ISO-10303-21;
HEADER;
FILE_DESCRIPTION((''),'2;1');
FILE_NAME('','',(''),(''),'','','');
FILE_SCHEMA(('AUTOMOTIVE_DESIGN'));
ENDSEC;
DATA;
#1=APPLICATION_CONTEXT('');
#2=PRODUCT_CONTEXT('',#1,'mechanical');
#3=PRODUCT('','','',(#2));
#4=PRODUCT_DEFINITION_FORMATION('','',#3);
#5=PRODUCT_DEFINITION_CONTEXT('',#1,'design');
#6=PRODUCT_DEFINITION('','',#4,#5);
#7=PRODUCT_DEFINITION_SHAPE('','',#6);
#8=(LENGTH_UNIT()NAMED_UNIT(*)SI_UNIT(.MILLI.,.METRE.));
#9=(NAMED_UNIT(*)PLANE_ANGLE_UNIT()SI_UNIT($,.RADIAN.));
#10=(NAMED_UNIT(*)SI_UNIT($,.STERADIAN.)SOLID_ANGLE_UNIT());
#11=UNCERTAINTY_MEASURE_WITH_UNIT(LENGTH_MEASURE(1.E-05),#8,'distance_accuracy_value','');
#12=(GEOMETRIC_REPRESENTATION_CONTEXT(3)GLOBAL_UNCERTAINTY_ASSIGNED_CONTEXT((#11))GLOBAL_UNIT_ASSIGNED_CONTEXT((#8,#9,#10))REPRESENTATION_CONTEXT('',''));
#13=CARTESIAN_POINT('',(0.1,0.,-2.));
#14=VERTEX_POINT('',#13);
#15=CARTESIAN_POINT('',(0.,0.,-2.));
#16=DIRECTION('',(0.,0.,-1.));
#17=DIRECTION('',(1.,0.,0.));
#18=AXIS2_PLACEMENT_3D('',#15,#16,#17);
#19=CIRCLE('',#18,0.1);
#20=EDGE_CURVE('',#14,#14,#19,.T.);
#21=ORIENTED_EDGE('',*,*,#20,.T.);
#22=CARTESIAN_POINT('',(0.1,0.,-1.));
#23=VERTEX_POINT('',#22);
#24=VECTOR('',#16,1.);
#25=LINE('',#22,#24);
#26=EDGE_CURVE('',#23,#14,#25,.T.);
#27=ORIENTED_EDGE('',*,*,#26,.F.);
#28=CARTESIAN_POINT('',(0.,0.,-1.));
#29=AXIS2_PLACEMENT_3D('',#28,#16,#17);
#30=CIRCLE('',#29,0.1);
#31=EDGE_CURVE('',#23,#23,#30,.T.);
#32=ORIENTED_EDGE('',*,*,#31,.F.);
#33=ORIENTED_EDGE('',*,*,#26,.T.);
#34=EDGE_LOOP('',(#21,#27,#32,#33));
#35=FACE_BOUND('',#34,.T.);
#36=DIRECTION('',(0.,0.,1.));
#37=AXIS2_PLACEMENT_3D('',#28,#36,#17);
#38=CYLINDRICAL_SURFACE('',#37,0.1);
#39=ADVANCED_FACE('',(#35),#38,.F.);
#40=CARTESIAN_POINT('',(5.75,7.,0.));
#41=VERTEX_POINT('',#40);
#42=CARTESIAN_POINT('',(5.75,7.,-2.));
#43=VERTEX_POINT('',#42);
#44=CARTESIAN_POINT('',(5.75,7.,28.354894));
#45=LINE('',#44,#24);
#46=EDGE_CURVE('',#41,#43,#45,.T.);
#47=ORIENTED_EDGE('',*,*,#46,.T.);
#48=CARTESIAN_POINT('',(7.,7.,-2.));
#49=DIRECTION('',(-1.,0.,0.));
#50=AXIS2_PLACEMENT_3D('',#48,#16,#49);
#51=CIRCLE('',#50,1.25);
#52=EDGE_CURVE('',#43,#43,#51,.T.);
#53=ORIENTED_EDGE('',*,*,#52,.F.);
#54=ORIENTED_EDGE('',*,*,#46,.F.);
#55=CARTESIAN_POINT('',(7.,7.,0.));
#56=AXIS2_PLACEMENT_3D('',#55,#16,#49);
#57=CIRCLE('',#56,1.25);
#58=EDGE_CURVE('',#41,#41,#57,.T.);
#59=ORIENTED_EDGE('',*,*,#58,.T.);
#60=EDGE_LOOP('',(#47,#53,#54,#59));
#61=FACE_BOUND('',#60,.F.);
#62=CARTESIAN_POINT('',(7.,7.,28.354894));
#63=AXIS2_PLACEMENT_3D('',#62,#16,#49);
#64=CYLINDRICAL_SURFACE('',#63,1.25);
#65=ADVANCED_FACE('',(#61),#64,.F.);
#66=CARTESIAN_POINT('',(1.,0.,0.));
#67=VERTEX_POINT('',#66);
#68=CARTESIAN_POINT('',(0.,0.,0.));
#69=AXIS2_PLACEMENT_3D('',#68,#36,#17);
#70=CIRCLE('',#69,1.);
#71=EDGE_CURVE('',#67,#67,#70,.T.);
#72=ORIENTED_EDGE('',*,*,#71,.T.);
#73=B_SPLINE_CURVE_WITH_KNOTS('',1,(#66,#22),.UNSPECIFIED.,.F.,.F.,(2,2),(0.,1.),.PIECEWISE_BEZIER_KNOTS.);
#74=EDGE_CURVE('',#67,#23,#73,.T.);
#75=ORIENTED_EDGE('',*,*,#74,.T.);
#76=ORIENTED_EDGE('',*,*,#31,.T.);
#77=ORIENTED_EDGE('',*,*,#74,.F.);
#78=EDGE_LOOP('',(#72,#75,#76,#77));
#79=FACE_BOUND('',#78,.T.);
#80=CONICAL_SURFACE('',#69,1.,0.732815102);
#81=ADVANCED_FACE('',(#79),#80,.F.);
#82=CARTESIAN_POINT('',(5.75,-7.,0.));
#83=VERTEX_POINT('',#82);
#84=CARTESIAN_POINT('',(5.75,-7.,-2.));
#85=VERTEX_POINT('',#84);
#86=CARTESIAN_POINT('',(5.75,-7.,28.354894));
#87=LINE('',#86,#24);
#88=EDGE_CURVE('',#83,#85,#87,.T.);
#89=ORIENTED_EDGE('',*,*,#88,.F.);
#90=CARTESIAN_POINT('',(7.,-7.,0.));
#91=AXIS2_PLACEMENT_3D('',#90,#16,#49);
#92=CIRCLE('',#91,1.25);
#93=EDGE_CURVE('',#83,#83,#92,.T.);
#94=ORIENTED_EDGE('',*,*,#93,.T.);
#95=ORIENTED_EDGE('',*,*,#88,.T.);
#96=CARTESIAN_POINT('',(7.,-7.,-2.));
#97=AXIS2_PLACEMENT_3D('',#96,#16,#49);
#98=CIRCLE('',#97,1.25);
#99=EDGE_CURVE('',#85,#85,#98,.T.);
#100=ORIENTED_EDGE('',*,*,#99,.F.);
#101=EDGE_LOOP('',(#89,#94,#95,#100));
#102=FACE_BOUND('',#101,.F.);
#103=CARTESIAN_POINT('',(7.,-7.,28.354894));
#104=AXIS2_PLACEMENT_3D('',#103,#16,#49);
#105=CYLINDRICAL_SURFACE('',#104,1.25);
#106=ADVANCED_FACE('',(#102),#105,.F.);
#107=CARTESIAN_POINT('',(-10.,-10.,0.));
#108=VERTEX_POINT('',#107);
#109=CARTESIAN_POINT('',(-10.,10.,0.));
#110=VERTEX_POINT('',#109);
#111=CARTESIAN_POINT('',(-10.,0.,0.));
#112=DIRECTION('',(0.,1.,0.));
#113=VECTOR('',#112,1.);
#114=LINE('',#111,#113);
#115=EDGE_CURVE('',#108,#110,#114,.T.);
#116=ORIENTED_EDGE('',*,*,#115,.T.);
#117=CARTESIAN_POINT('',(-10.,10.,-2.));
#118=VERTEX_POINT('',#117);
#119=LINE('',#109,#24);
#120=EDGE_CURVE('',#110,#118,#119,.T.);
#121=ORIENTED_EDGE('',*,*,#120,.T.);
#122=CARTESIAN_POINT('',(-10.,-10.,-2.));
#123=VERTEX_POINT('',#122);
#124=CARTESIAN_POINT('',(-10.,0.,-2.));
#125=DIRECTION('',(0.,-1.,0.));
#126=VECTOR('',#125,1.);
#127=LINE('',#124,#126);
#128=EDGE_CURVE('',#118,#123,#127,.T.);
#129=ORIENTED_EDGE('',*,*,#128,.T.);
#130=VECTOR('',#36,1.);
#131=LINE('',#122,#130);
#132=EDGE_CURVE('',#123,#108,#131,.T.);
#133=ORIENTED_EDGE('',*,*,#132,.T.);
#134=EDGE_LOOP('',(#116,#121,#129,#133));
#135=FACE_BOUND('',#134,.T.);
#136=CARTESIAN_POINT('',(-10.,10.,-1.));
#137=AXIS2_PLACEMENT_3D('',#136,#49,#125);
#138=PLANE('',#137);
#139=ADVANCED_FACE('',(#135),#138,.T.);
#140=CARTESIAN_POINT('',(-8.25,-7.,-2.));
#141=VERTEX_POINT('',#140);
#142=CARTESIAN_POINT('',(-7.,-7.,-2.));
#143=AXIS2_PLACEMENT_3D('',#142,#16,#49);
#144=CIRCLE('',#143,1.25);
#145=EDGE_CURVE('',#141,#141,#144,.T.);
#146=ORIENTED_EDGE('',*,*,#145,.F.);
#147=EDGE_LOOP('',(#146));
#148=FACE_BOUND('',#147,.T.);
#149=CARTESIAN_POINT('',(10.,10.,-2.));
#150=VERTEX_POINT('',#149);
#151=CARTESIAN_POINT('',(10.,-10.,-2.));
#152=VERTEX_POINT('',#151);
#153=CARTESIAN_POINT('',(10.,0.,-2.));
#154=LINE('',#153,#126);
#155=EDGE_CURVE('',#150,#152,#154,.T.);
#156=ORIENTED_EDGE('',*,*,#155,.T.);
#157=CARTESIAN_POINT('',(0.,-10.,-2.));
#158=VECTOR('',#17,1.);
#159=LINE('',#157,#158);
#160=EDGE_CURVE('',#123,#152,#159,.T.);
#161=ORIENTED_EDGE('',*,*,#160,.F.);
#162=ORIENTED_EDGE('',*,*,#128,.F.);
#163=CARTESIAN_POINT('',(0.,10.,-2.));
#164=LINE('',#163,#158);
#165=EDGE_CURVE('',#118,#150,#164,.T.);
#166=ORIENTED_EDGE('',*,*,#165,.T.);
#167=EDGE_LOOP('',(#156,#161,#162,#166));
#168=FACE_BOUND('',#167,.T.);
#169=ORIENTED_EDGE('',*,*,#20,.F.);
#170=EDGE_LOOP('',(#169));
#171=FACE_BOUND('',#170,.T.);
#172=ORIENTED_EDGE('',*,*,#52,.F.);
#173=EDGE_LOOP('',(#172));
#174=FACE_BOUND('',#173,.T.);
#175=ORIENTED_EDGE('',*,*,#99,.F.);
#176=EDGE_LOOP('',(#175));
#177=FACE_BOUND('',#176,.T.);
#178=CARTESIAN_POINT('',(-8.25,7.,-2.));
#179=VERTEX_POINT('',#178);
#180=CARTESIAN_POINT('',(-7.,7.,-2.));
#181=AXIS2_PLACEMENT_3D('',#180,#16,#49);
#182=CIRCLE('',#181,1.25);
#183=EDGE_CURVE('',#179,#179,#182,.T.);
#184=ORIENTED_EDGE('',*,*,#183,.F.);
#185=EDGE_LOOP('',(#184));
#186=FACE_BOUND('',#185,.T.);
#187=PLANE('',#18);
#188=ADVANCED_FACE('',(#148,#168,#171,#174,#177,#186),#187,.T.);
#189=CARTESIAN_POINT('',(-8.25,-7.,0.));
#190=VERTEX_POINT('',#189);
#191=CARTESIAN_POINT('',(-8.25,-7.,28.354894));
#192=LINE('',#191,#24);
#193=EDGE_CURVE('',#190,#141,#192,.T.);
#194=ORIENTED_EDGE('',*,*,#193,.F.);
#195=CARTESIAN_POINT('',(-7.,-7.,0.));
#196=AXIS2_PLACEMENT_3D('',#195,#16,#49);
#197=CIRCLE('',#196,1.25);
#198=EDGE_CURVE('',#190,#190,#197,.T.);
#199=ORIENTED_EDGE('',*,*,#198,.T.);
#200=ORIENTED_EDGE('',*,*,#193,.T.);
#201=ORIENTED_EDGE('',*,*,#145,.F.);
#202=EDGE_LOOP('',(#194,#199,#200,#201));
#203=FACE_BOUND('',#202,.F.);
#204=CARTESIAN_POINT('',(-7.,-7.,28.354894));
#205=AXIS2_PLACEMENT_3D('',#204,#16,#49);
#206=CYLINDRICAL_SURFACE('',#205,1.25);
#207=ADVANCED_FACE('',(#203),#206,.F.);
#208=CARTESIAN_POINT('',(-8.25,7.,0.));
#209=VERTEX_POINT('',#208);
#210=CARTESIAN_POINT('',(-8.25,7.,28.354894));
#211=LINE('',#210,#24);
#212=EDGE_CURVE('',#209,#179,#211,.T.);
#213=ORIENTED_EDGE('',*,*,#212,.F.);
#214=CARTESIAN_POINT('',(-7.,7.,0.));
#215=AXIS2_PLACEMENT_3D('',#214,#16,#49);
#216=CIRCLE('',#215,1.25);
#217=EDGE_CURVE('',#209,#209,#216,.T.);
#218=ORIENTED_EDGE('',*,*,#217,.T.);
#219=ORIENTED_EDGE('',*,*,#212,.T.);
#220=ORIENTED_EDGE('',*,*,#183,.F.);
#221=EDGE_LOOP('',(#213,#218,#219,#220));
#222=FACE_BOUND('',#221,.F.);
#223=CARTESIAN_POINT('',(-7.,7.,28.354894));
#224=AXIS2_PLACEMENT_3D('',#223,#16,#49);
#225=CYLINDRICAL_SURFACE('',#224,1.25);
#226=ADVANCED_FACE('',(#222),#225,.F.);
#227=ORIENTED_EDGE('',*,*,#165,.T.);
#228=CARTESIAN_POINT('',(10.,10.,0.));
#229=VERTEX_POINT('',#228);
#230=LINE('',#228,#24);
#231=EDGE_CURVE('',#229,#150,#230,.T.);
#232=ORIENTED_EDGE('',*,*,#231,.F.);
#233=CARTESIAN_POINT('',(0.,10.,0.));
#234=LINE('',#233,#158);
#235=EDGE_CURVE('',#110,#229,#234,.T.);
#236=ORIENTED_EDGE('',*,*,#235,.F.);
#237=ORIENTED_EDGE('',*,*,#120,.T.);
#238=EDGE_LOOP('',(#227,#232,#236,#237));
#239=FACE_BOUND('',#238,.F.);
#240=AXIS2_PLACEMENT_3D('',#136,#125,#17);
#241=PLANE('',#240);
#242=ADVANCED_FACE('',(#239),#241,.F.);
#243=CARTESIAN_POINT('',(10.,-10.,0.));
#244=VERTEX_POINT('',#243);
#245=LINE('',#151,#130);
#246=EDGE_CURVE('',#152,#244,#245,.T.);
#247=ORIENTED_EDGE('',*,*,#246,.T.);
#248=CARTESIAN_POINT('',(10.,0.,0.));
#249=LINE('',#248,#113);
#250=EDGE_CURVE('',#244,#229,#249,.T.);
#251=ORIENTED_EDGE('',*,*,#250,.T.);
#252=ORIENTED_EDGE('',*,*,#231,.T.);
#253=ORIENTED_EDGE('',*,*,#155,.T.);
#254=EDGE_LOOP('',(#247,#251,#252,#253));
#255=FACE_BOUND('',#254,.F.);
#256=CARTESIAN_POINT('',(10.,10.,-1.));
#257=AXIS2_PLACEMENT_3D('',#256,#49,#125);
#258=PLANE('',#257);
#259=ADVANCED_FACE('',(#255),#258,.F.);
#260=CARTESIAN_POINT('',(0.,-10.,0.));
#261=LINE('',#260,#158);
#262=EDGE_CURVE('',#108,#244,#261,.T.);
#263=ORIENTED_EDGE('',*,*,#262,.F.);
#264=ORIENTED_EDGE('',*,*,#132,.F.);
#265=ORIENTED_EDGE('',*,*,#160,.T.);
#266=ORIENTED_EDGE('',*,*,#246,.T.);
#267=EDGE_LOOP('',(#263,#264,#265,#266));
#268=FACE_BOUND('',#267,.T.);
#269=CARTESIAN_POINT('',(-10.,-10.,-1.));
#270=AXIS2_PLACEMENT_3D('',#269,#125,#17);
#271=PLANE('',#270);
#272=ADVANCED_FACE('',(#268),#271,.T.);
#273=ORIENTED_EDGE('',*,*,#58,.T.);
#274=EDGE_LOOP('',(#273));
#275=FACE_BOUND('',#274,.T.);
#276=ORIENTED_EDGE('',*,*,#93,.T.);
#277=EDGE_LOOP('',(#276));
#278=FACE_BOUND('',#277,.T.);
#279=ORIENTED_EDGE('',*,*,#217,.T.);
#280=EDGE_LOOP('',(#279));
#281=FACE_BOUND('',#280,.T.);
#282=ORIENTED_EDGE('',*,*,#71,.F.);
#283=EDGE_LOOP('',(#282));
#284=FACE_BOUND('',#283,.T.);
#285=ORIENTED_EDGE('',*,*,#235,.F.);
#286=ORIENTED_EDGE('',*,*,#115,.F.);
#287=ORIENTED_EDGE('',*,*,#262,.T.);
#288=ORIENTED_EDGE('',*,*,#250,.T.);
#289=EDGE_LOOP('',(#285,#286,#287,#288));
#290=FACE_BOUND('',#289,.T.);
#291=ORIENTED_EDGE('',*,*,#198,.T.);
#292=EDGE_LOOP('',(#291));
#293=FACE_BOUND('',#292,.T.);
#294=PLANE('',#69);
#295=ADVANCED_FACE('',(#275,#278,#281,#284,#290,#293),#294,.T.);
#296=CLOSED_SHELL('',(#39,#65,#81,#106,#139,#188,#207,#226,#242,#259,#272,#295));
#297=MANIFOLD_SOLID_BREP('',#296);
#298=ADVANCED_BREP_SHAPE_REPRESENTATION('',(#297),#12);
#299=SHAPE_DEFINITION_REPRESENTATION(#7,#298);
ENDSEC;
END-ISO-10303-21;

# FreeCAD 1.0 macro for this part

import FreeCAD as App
import Part
import Sketcher
from FreeCAD import Vector


def add_polygon(sketch, points):
    """Adds a closed chain of lines whose ends are joined by coincident constraints."""
    first, n = sketch.GeometryCount, len(points)
    for a, b in zip(points, points[1:] + points[:1]):
        sketch.addGeometry(Part.LineSegment(App.Vector(*a, 0), App.Vector(*b, 0)), False)
    for i in range(n):
        sketch.addConstraint(Sketcher.Constraint("Coincident", first + i, 2, first + (i + 1) % n, 1))

doc = App.newDocument("Part")
body = doc.addObject("PartDesign::Body", "Body")

sketch1 = body.newObject("Sketcher::SketchObject", "Sketch")
sketch1.AttachmentSupport = (doc.getObject("XY_Plane"), [""])
sketch1.MapMode = "FlatFace"
add_polygon(sketch1, [(-10, 10), (-10, -10), (10, -10), (10, 10)])
sketch1.addConstraint(Sketcher.Constraint("Vertical", 0))
sketch1.addConstraint(Sketcher.Constraint("Horizontal", 1))
sketch1.addConstraint(Sketcher.Constraint("Vertical", 2))
sketch1.addConstraint(Sketcher.Constraint("Horizontal", 3))
sketch1.addConstraint(Sketcher.Constraint("Symmetric", 0, 2, 2, 2, -1, 1))
sketch1.addConstraint(Sketcher.Constraint("Equal", 3, 0))
sketch1.addConstraint(Sketcher.Constraint("DistanceX", 1, 1, 1, 2, 20.0))
pad1 = body.newObject("PartDesign::Pad", "Pad")
pad1.Profile = sketch1
pad1.Length = 1
pad1.Reversed = True

sketch2 = body.newObject("Sketcher::SketchObject", "Sketch001")
sketch2.AttachmentSupport = (doc.getObject("XY_Plane"), [""])
sketch2.MapMode = "FlatFace"
sketch2.addGeometry(Part.Circle(Vector(0, 0, 0), Vector(0, 0, 1), 1), False)
sketch2.addConstraint(Sketcher.Constraint("Coincident", 0, 3, -1, 1))
sketch2.addConstraint(Sketcher.Constraint("Diameter", 0, 2.0))

sketch3 = body.newObject("Sketcher::SketchObject", "Sketch002")
sketch3.AttachmentSupport = (doc.getObject("XY_Plane"), [""])
sketch3.MapMode = "FlatFace"
sketch3.AttachmentOffset = App.Placement(Vector(0, 0, -1), App.Rotation())
sketch3.addGeometry(Part.Circle(Vector(0, 0, 0), Vector(0, 0, 1), 0.1), False)
sketch3.addConstraint(Sketcher.Constraint("Coincident", 0, 3, -1, 1))
sketch3.addConstraint(Sketcher.Constraint("Diameter", 0, 0.2))

subtractiveloft = body.newObject("PartDesign::SubtractiveLoft", "SubtractiveLoft")
subtractiveloft.Profile = sketch2
subtractiveloft.Sections = [sketch3]

sketch4 = body.newObject("Sketcher::SketchObject", "Sketch003")
sketch4.AttachmentSupport = (doc.getObject("XY_Plane"), [""])
sketch4.MapMode = "FlatFace"
sketch4.AttachmentOffset = App.Placement(Vector(0, 0, -1), App.Rotation())
add_polygon(sketch4, [(-10, -10), (-10, 10), (10, 10), (10, -10)])
sketch4.addGeometry(Part.Circle(Vector(0, 0, 0), Vector(0, 0, 1), 0.1), False)
sketch4.addConstraint(Sketcher.Constraint("Vertical", 0))
sketch4.addConstraint(Sketcher.Constraint("Horizontal", 1))
sketch4.addConstraint(Sketcher.Constraint("Vertical", 2))
sketch4.addConstraint(Sketcher.Constraint("Horizontal", 3))
sketch4.addConstraint(Sketcher.Constraint("Coincident", 4, 3, -1, 1))
sketch4.addConstraint(Sketcher.Constraint("Symmetric", 0, 2, 2, 2, -1, 1))
sketch4.addConstraint(Sketcher.Constraint("Equal", 3, 0))
sketch4.addConstraint(Sketcher.Constraint("Diameter", 4, 0.2))
sketch4.addConstraint(Sketcher.Constraint("DistanceX", 1, 1, 1, 2, 20.0))
pad2 = body.newObject("PartDesign::Pad", "Pad001")
pad2.Profile = sketch4
pad2.Length = 1
pad2.Reversed = True

sketch5 = body.newObject("Sketcher::SketchObject", "Sketch004")
sketch5.AttachmentSupport = (doc.getObject("XY_Plane"), [""])
sketch5.MapMode = "FlatFace"
sketch5.addGeometry(Part.Circle(Vector(-7, -7, 0), Vector(0, 0, 1), 1.25), False)
sketch5.addGeometry(Part.Circle(Vector(7, -7, 0), Vector(0, 0, 1), 1.25), False)
sketch5.addGeometry(Part.Circle(Vector(7, 7, 0), Vector(0, 0, 1), 1.25), False)
sketch5.addGeometry(Part.Circle(Vector(-7, 7, 0), Vector(0, 0, 1), 1.25), False)
sketch5.addConstraint(Sketcher.Constraint("Equal", 0, 1))
sketch5.addConstraint(Sketcher.Constraint("Equal", 1, 2))
sketch5.addConstraint(Sketcher.Constraint("Equal", 2, 3))
sketch5.addConstraint(Sketcher.Constraint("Symmetric", 0, 3, 2, 3, -1, 1))
sketch5.addConstraint(Sketcher.Constraint("Symmetric", 1, 3, 3, 3, -1, 1))
sketch5.addConstraint(Sketcher.Constraint("Symmetric", 0, 3, 1, 3, -2))
sketch5.addConstraint(Sketcher.Constraint("Diameter", 0, 2.5))
sketch5.addConstraint(Sketcher.Constraint("DistanceX", 0, 3, -1, 1, 7.0))
sketch5.addConstraint(Sketcher.Constraint("DistanceY", 0, 3, -1, 1, 7.0))
doc.recompute()
hole = body.newObject("PartDesign::Hole", "Hole")
hole.Profile = sketch5
hole.ThreadType = "None"
hole.Diameter = 2.5
hole.DepthType = "ThroughAll"

doc.recompute()
